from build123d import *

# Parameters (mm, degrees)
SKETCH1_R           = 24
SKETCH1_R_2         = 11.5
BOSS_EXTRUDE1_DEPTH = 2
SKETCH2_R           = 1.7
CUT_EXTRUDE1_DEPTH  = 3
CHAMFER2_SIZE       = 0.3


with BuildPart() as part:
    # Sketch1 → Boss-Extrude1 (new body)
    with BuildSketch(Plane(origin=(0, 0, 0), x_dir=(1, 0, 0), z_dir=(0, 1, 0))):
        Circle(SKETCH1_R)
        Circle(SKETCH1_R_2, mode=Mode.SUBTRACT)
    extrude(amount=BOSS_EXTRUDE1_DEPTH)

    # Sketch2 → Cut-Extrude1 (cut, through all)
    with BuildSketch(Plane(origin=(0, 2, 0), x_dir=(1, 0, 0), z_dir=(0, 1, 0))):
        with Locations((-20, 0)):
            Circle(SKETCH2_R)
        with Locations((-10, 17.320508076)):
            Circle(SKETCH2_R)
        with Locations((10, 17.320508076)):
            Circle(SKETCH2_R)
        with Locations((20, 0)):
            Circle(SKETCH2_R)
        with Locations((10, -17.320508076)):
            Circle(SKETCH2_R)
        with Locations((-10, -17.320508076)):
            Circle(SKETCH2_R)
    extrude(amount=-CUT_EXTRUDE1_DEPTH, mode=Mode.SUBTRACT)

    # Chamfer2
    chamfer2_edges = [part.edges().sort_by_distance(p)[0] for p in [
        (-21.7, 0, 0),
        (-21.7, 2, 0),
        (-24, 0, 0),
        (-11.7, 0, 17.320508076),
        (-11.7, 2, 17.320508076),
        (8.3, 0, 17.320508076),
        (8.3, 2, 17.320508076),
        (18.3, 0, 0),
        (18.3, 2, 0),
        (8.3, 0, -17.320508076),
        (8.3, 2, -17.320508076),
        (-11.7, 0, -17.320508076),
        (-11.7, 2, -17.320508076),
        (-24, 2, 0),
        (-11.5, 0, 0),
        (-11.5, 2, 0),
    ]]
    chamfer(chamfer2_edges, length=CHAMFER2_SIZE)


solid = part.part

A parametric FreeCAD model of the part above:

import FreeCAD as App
import Part
import Sketcher
Q = App.Units.Quantity


def edges_at(feature, points):
    """Names of the edges that pass closest to the given points."""
    edges = feature.Shape.Edges
    near = lambda p: min(range(len(edges)), key=lambda i: edges[i].distToShape(Part.Vertex(*p))[0])
    return sorted({f"Edge{near(p) + 1}" for p in points})

doc = App.newDocument("Part")
body = doc.addObject("PartDesign::Body", "Body")

# Sketch on XZ plane
sketch1 = body.newObject("Sketcher::SketchObject", "Sketch")
sketch1.AttachmentSupport = (doc.getObject("XZ_Plane"), [""])
sketch1.MapMode = "FlatFace"
sketch1.addGeometry([
    Part.Circle(App.Vector(0, 0, 0), App.Vector(0, 0, 1), 24),
    Part.Circle(App.Vector(0, 0, 0), App.Vector(0, 0, 1), 11.5),
], False)
sketch1.addConstraint([
    Sketcher.Constraint("Coincident", 0, 3, -1, 1),
    Sketcher.Constraint("Coincident", 1, 3, -1, 1),
    Sketcher.Constraint("Diameter", 0, Q("48 mm")),
    Sketcher.Constraint("Diameter", 1, Q("23 mm")),
])
pad1 = body.newObject("PartDesign::Pad", "Pad")
pad1.Profile = sketch1
pad1.Length = 2
pad1.Reversed = True

# Sketch on XZ plane
sketch2 = body.newObject("Sketcher::SketchObject", "Sketch001")
sketch2.AttachmentSupport = (doc.getObject("XZ_Plane"), [""])
sketch2.MapMode = "FlatFace"
sketch2.AttachmentOffset = App.Placement(App.Vector(0, 0, -2), App.Rotation())
sketch2.addGeometry([
    Part.Circle(App.Vector(-20, 0, 0), App.Vector(0, 0, 1), 1.7),  # 0
    Part.Circle(App.Vector(-10, -17.320508, 0), App.Vector(0, 0, 1), 1.7),  # 1
    Part.Circle(App.Vector(10, -17.320508, 0), App.Vector(0, 0, 1), 1.7),  # 2
    Part.Circle(App.Vector(20, 0, 0), App.Vector(0, 0, 1), 1.7),  # 3
    Part.Circle(App.Vector(10, 17.320508, 0), App.Vector(0, 0, 1), 1.7),  # 4
    Part.Circle(App.Vector(-10, 17.320508, 0), App.Vector(0, 0, 1), 1.7),  # 5
], False)
sketch2.addConstraint([
    Sketcher.Constraint("Equal", 0, 1),
    Sketcher.Constraint("Equal", 1, 2),
    Sketcher.Constraint("Equal", 2, 3),
    Sketcher.Constraint("Equal", 3, 4),
    Sketcher.Constraint("Equal", 4, 5),
    Sketcher.Constraint("Symmetric", 0, 3, 3, 3, -1, 1),
    Sketcher.Constraint("Symmetric", 1, 3, 4, 3, -1, 1),
    Sketcher.Constraint("Symmetric", 2, 3, 5, 3, -1, 1),
    Sketcher.Constraint("Symmetric", 1, 3, 2, 3, -2),
    Sketcher.Constraint("PointOnObject", 0, 3, -1),
    Sketcher.Constraint("Diameter", 0, Q("3.4 mm")),
    Sketcher.Constraint("DistanceX", 0, 3, -1, 1, Q("20 mm")),
    Sketcher.Constraint("DistanceX", 1, 3, -1, 1, Q("10 mm")),
    Sketcher.Constraint("DistanceY", 1, 3, -1, 1, Q("17.320508 mm")),
])
pocket1 = body.newObject("PartDesign::Pocket", "Pocket")
pocket1.Profile = sketch2
pocket1.Type = "ThroughAll"
pocket1.Reversed = True
doc.recompute()

chamfer = body.newObject("PartDesign::Chamfer", "Chamfer")
chamfer.Base = (pocket1, edges_at(pocket1, [
    (-21.7, 0, 0),
    (-21.7, 2, 0),
    (-24, 0, 0),
    (-11.7, 0, 17.321),
    (-11.7, 2, 17.321),
    (8.3, 0, 17.321),
    (8.3, 2, 17.321),
    (18.3, 0, 0),
    (18.3, 2, 0),
    (8.3, 0, -17.321),
    (8.3, 2, -17.321),
    (-11.7, 0, -17.321),
    (-11.7, 2, -17.321),
    (-24, 2, 0),
    (-11.5, 0, 0),
    (-11.5, 2, 0),
]))
chamfer.Size = 0.3

doc.recompute()
